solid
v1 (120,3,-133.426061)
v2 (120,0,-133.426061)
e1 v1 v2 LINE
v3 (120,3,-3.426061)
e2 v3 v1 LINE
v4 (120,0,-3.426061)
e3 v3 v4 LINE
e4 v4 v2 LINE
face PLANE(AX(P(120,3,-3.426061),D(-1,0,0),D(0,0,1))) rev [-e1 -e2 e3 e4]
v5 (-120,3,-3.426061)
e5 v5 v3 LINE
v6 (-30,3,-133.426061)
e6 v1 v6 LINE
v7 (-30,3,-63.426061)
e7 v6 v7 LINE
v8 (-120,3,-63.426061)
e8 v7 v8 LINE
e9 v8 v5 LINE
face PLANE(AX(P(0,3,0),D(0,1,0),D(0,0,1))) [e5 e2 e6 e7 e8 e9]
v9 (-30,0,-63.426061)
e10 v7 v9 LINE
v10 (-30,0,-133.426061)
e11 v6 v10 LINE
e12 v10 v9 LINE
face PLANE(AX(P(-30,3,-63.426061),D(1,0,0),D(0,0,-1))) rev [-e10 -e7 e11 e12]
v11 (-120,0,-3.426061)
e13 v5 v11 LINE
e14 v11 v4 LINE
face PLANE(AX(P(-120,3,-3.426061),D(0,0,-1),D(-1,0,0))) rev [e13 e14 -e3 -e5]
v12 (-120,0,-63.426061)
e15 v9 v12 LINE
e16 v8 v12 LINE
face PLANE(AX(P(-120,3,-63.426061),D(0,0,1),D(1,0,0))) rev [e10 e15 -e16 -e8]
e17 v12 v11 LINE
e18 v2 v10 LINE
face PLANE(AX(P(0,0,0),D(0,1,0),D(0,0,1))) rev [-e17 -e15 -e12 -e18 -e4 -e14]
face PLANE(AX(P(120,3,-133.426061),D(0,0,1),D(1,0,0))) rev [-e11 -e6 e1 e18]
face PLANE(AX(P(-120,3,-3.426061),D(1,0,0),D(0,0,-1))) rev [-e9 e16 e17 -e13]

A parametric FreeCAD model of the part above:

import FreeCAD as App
import Part
import Sketcher
from FreeCAD import Vector

doc = App.newDocument("Part")
body = doc.addObject("PartDesign::Body", "Body")

sketch1 = doc.addObject("Sketcher::SketchObject", "Sketch")
body.addObject(sketch1)
sketch1.AttachmentSupport = (doc.XZ_Plane, [""])
sketch1.MapMode = "FlatFace"
sketch1.addGeometry([
    Part.LineSegment(Vector(-120, -3, 0), Vector(120, -3, 0)),
    Part.LineSegment(Vector(120, -3, 0), Vector(120, -133, 0)),
    Part.LineSegment(Vector(120, -133, 0), Vector(-30, -133, 0)),
    Part.LineSegment(Vector(-30, -133, 0), Vector(-30, -63, 0)),
    Part.LineSegment(Vector(-30, -63, 0), Vector(-120, -63, 0)),
    Part.LineSegment(Vector(-120, -63, 0), Vector(-120, -3, 0)),
], False)
sketch1.addConstraint([
    Sketcher.Constraint("Coincident", 0, 2, 1, 1),
    Sketcher.Constraint("Coincident", 1, 2, 2, 1),
    Sketcher.Constraint("Coincident", 2, 2, 3, 1),
    Sketcher.Constraint("Coincident", 3, 2, 4, 1),
    Sketcher.Constraint("Coincident", 4, 2, 5, 1),
    Sketcher.Constraint("Coincident", 5, 2, 0, 1),
    Sketcher.Constraint("Horizontal", 0),
    Sketcher.Constraint("Vertical", 1),
    Sketcher.Constraint("Horizontal", 2),
    Sketcher.Constraint("Vertical", 3),
    Sketcher.Constraint("Horizontal", 4),
    Sketcher.Constraint("Vertical", 5),
    Sketcher.Constraint("DistanceX", 0, 1, 0, 2, 240.0),
    Sketcher.Constraint("DistanceX", 2, 2, 2, 1, 150.0),
    Sketcher.Constraint("DistanceY", 1, 2, 1, 1, 130.0),
    Sketcher.Constraint("DistanceY", 3, 1, 3, 2, 70.0),
    Sketcher.Constraint("DistanceX", -1, 1, 0, 2, 120.0),
    Sketcher.Constraint("DistanceY", 0, 2, -1, 1, 3.426061),
])
pad1 = doc.addObject("PartDesign::Pad", "Pad")
body.addObject(pad1)
pad1.Profile = sketch1
pad1.Length = 3
pad1.Reversed = True

doc.recompute()
